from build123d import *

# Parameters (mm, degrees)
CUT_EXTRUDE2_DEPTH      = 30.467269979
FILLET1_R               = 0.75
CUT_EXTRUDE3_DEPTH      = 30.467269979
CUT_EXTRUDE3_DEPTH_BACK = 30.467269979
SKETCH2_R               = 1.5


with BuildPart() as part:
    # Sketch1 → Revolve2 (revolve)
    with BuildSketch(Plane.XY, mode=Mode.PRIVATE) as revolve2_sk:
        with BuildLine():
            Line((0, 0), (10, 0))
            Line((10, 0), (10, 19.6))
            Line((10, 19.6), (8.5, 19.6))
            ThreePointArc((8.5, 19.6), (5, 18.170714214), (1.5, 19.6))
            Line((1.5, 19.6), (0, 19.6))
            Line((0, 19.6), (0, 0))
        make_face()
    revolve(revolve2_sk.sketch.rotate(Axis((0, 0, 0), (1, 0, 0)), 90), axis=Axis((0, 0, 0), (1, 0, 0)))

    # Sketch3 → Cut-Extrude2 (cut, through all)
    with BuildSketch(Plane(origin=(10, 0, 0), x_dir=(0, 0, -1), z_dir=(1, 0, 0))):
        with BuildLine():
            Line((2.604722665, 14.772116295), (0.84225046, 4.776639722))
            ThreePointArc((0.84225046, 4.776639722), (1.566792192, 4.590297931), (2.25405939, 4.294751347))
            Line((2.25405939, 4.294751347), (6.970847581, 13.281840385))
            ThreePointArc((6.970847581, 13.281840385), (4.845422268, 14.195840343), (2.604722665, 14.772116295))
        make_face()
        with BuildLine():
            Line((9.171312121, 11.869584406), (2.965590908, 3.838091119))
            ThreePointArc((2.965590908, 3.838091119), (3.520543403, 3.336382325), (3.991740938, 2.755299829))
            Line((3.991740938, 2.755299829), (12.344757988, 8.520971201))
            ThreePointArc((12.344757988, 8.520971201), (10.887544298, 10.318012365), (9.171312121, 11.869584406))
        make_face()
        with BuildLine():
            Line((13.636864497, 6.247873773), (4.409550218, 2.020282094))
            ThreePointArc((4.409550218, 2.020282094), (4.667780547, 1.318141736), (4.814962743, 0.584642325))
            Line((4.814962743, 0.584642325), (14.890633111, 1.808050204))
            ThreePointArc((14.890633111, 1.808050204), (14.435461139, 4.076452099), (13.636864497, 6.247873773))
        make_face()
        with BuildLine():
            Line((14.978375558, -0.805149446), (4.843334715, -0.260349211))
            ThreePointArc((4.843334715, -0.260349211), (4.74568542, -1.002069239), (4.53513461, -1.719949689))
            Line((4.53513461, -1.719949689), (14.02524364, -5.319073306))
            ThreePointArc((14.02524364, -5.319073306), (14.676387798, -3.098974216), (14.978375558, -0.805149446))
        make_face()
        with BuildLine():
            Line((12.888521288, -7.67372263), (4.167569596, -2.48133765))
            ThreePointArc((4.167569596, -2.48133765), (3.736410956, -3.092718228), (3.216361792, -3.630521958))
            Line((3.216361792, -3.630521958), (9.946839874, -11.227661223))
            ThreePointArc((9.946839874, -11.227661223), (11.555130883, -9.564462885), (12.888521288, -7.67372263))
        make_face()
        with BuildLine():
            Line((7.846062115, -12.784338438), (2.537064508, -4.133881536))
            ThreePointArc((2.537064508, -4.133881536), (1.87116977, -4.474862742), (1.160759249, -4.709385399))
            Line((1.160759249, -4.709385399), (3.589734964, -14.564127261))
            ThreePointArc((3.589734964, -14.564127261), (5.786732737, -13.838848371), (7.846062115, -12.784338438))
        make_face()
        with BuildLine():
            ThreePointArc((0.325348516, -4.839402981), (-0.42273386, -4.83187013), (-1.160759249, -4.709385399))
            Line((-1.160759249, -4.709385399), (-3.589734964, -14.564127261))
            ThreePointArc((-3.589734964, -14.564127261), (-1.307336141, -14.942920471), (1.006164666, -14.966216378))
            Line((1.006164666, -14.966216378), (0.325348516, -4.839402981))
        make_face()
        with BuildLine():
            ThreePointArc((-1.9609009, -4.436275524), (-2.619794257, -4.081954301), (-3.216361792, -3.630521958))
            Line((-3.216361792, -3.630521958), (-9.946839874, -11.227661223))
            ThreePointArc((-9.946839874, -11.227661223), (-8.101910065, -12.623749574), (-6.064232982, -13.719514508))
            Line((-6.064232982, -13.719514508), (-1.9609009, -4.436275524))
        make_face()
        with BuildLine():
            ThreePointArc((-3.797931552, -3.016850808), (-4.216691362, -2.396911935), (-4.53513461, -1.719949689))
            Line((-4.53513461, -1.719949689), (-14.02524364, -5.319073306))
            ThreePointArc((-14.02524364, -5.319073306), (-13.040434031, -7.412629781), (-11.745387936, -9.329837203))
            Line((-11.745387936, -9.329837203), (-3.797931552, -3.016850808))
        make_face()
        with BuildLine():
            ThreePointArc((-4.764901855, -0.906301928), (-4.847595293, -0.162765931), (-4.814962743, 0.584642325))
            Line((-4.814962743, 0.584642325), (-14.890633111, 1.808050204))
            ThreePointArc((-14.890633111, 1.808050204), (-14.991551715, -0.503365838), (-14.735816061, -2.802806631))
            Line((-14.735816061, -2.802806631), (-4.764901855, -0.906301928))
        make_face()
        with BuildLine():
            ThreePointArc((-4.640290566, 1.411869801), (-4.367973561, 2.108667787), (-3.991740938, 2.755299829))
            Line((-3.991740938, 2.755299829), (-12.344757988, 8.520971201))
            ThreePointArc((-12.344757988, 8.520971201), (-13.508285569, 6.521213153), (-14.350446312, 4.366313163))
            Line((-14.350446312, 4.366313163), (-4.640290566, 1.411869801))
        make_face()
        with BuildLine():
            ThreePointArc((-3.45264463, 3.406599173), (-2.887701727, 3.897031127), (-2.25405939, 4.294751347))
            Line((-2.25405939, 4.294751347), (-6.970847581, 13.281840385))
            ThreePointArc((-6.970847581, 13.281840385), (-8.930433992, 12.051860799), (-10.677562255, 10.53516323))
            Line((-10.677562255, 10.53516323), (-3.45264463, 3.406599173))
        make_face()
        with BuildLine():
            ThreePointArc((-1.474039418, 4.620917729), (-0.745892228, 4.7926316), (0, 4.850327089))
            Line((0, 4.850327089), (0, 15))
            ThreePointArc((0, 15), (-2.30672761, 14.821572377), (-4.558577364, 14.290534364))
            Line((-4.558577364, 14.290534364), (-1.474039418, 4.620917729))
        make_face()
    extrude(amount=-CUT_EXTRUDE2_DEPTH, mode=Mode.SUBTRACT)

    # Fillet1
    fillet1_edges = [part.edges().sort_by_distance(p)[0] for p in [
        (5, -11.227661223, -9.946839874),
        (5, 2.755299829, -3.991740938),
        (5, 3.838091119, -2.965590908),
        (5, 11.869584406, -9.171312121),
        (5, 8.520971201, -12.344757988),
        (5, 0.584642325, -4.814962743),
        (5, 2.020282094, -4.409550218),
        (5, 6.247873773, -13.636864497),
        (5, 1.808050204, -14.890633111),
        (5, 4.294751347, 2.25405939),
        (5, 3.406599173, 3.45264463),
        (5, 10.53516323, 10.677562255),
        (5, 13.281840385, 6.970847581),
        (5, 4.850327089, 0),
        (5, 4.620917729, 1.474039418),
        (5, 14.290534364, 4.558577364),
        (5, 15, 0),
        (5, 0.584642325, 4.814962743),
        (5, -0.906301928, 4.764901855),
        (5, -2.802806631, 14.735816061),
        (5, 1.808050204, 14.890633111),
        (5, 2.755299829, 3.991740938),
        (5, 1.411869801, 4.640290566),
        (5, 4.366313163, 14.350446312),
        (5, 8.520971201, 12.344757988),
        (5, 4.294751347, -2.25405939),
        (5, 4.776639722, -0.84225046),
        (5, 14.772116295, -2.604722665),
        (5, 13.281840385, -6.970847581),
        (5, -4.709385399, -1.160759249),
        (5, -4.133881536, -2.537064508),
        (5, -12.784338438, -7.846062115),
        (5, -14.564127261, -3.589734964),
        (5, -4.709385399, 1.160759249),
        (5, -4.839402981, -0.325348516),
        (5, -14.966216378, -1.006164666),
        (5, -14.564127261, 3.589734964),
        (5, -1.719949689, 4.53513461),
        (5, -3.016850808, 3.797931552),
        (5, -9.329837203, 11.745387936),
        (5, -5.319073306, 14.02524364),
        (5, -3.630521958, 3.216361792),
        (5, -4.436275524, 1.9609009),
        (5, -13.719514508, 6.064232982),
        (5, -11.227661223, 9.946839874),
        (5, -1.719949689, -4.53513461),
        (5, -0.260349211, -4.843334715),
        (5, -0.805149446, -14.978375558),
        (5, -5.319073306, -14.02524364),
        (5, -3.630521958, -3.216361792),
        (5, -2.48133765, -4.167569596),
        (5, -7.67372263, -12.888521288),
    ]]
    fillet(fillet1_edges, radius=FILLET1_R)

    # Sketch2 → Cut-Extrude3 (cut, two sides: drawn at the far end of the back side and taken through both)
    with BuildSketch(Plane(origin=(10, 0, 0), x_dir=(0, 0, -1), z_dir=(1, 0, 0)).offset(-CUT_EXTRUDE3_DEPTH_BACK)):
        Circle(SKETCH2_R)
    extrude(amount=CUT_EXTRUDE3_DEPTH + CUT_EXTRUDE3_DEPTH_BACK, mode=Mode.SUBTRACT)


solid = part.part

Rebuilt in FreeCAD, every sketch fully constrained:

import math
import FreeCAD as App
import Part
import Sketcher

V = App.Vector
Q = App.Units.Quantity


def edges_at(feature, points):
    """Names of the edges that pass closest to the given points."""
    edges = feature.Shape.Edges
    near = lambda p: min(range(len(edges)), key=lambda i: edges[i].distToShape(Part.Vertex(*p))[0])
    return sorted({f"Edge{near(p) + 1}" for p in points})

doc = App.newDocument("Part")
body = doc.addObject("PartDesign::Body", "Body")

sketch1 = body.newObject("Sketcher::SketchObject", "Sketch")
sketch1.AttachmentSupport = (doc.getObject("XY_Plane"), [""])
sketch1.MapMode = "FlatFace"
sketch1.addGeometry([
    Part.LineSegment(V(0, 0, 0), V(10, 0, 0)),
    Part.LineSegment(V(10, 0, 0), V(10, 19.6, 0)),
    Part.LineSegment(V(10, 19.6, 0), V(8.5, 19.6, 0)),
    Part.ArcOfCircle(Part.Circle(V(5, 23.2, 0), V(0, 0, 1), 5), math.radians(-134), math.radians(-46)),
    Part.LineSegment(V(1.5, 19.6, 0), V(0, 19.6, 0)),
    Part.LineSegment(V(0, 19.6, 0), V(0, 0, 0)),
], False)
sketch1.addConstraint([
    Sketcher.Constraint("Coincident", 0, 2, 1, 1),
    Sketcher.Constraint("Coincident", 1, 2, 2, 1),
    Sketcher.Constraint("Coincident", 2, 2, 3, 2),
    Sketcher.Constraint("Coincident", 3, 1, 4, 1),
    Sketcher.Constraint("Coincident", 4, 2, 5, 1),
    Sketcher.Constraint("Coincident", 5, 2, 0, 1),
    Sketcher.Constraint("Horizontal", 0),
    Sketcher.Constraint("Vertical", 1),
    Sketcher.Constraint("Horizontal", 2),
    Sketcher.Constraint("Horizontal", 4),
    Sketcher.Constraint("Vertical", 5),
    Sketcher.Constraint("Coincident", 5, 2, -1, 1),
    Sketcher.Constraint("Horizontal", 2, 2, 3, 1),
    Sketcher.Constraint("Equal", 2, 4),
    Sketcher.Constraint("Radius", 3, Q("5 mm")),
    Sketcher.Constraint("DistanceX", 0, 1, 0, 2, Q("10 mm")),
    Sketcher.Constraint("DistanceX", 2, 2, 2, 1, Q("1.5 mm")),
    Sketcher.Constraint("DistanceY", 1, 1, 1, 2, Q("19.6 mm")),
])
revolution = body.newObject("PartDesign::Revolution", "Revolution")
revolution.Profile = sketch1
revolution.ReferenceAxis = (sketch1, ["H_Axis"])
revolution.Angle = 360

sketch2 = body.newObject("Sketcher::SketchObject", "Sketch001")
sketch2.AttachmentSupport = (doc.getObject("YZ_Plane"), [""])
sketch2.MapMode = "FlatFace"
sketch2.AttachmentOffset = App.Placement(V(0, 0, 10), App.Rotation())
sketch2.addGeometry([
    Part.LineSegment(V(14.8, -2.6, 0), V(4.8, -0.8, 0)),
    Part.ArcOfCircle(Part.Circle(V(0, 0, 0), V(0, 0, 1), 4.9), math.radians(-27.69), math.radians(-10)),
    Part.LineSegment(V(4.3, -2.3, 0), V(13.3, -7, 0)),
    Part.ArcOfCircle(Part.Circle(V(0, 0, 0), V(0, 0, 1), 15), math.radians(-27.69), math.radians(-10)),
    Part.LineSegment(V(11.9, -9.2, 0), V(3.8, -3, 0)),
    Part.ArcOfCircle(Part.Circle(V(0, 0, 0), V(0, 0, 1), 4.9), math.radians(-55.38), math.radians(-37.69)),
    Part.LineSegment(V(2.8, -4, 0), V(8.5, -12.3, 0)),
    Part.ArcOfCircle(Part.Circle(V(0, 0, 0), V(0, 0, 1), 15), math.radians(-55.38), math.radians(-37.69)),
    Part.LineSegment(V(6.2, -13.6, 0), V(2, -4.4, 0)),
    Part.ArcOfCircle(Part.Circle(V(0, 0, 0), V(0, 0, 1), 4.9), math.radians(-83.08), math.radians(-65.38)),
    Part.LineSegment(V(0.6, -4.8, 0), V(1.8, -14.9, 0)),
    Part.ArcOfCircle(Part.Circle(V(0, 0, 0), V(0, 0, 1), 15), math.radians(-83.08), math.radians(-65.38)),
    Part.LineSegment(V(-0.8, -15, 0), V(-0.3, -4.8, 0)),
    Part.ArcOfCircle(Part.Circle(V(0, 0, 0), V(0, 0, 1), 4.9), math.radians(-110.77), math.radians(-93.08)),
    Part.LineSegment(V(-1.7, -4.5, 0), V(-5.3, -14, 0)),
    Part.ArcOfCircle(Part.Circle(V(0, 0, 0), V(0, 0, 1), 15), math.radians(-110.77), math.radians(-93.08)),
    Part.LineSegment(V(-7.7, -12.9, 0), V(-2.5, -4.2, 0)),
    Part.ArcOfCircle(Part.Circle(V(0, 0, 0), V(0, 0, 1), 4.9), math.radians(-138.46), math.radians(-120.77)),
    Part.LineSegment(V(-3.6, -3.2, 0), V(-11.2, -9.9, 0)),
    Part.ArcOfCircle(Part.Circle(V(0, 0, 0), V(0, 0, 1), 15), math.radians(-138.46), math.radians(-120.77)),
    Part.LineSegment(V(-12.8, -7.8, 0), V(-4.1, -2.5, 0)),
    Part.ArcOfCircle(Part.Circle(V(0, 0, 0), V(0, 0, 1), 4.9), math.radians(-166.15), math.radians(-148.46)),
    Part.LineSegment(V(-4.7, -1.2, 0), V(-14.6, -3.6, 0)),
    Part.ArcOfCircle(Part.Circle(V(0, 0, 0), V(0, 0, 1), 15), math.radians(-166.15), math.radians(-148.46)),
    Part.ArcOfCircle(Part.Circle(V(0, 0, 0), V(0, 0, 1), 4.9), math.radians(166.15), math.radians(183.85)),
    Part.LineSegment(V(-4.7, 1.2, 0), V(-14.6, 3.6, 0)),
    Part.ArcOfCircle(Part.Circle(V(0, 0, 0), V(0, 0, 1), 15), math.radians(166.15), math.radians(183.85)),
    Part.LineSegment(V(-15, -1, 0), V(-4.8, -0.3, 0)),
    Part.ArcOfCircle(Part.Circle(V(0, 0, 0), V(0, 0, 1), 4.9), math.radians(138.46), math.radians(156.15)),
    Part.LineSegment(V(-3.6, 3.2, 0), V(-11.2, 9.9, 0)),
    Part.ArcOfCircle(Part.Circle(V(0, 0, 0), V(0, 0, 1), 15), math.radians(138.46), math.radians(156.15)),
    Part.LineSegment(V(-13.7, 6.1, 0), V(-4.4, 2, 0)),
    Part.ArcOfCircle(Part.Circle(V(0, 0, 0), V(0, 0, 1), 4.9), math.radians(110.77), math.radians(128.46)),
    Part.LineSegment(V(-1.7, 4.5, 0), V(-5.3, 14, 0)),
    Part.ArcOfCircle(Part.Circle(V(0, 0, 0), V(0, 0, 1), 15), math.radians(110.77), math.radians(128.46)),
    Part.LineSegment(V(-9.3, 11.7, 0), V(-3, 3.8, 0)),
    Part.ArcOfCircle(Part.Circle(V(0, 0, 0), V(0, 0, 1), 4.9), math.radians(83.08), math.radians(100.77)),
    Part.LineSegment(V(0.6, 4.8, 0), V(1.8, 14.9, 0)),
    Part.ArcOfCircle(Part.Circle(V(0, 0, 0), V(0, 0, 1), 15), math.radians(83.08), math.radians(100.77)),
    Part.LineSegment(V(-2.8, 14.7, 0), V(-0.9, 4.8, 0)),
    Part.ArcOfCircle(Part.Circle(V(0, 0, 0), V(0, 0, 1), 4.9), math.radians(55.38), math.radians(73.08)),
    Part.LineSegment(V(2.8, 4, 0), V(8.5, 12.3, 0)),
    Part.ArcOfCircle(Part.Circle(V(0, 0, 0), V(0, 0, 1), 15), math.radians(55.38), math.radians(73.08)),
    Part.LineSegment(V(4.4, 14.4, 0), V(1.4, 4.6, 0)),
    Part.ArcOfCircle(Part.Circle(V(0, 0, 0), V(0, 0, 1), 4.9), math.radians(27.69), math.radians(45.38)),
    Part.LineSegment(V(4.3, 2.3, 0), V(13.3, 7, 0)),
    Part.ArcOfCircle(Part.Circle(V(0, 0, 0), V(0, 0, 1), 15), math.radians(27.69), math.radians(45.38)),
    Part.LineSegment(V(10.5, 10.7, 0), V(3.4, 3.5, 0)),
    Part.ArcOfCircle(Part.Circle(V(0, 0, 0), V(0, 0, 1), 4.9), math.radians(0), math.radians(17.69)),
    Part.LineSegment(V(4.9, 0, 0), V(15, 0, 0)),
    Part.ArcOfCircle(Part.Circle(V(0, 0, 0), V(0, 0, 1), 15), math.radians(0), math.radians(17.69)),
    Part.LineSegment(V(14.3, 4.6, 0), V(4.6, 1.5, 0)),
], False)
sketch2.addConstraint([
    Sketcher.Constraint("Coincident", 0, 2, 1, 2),
    Sketcher.Constraint("Coincident", 1, 1, 2, 1),
    Sketcher.Constraint("Coincident", 2, 2, 3, 1),
    Sketcher.Constraint("Coincident", 3, 2, 0, 1),
    Sketcher.Constraint("Coincident", 4, 2, 5, 2),
    Sketcher.Constraint("Coincident", 5, 1, 6, 1),
    Sketcher.Constraint("Coincident", 6, 2, 7, 1),
    Sketcher.Constraint("Coincident", 7, 2, 4, 1),
    Sketcher.Constraint("Coincident", 8, 2, 9, 2),
    Sketcher.Constraint("Coincident", 9, 1, 10, 1),
    Sketcher.Constraint("Coincident", 10, 2, 11, 1),
    Sketcher.Constraint("Coincident", 11, 2, 8, 1),
    Sketcher.Constraint("Coincident", 12, 2, 13, 2),
    Sketcher.Constraint("Coincident", 13, 1, 14, 1),
    Sketcher.Constraint("Coincident", 14, 2, 15, 1),
    Sketcher.Constraint("Coincident", 15, 2, 12, 1),
    Sketcher.Constraint("Coincident", 16, 2, 17, 2),
    Sketcher.Constraint("Coincident", 17, 1, 18, 1),
    Sketcher.Constraint("Coincident", 18, 2, 19, 1),
    Sketcher.Constraint("Coincident", 19, 2, 16, 1),
    Sketcher.Constraint("Coincident", 20, 2, 21, 2),
    Sketcher.Constraint("Coincident", 21, 1, 22, 1),
    Sketcher.Constraint("Coincident", 22, 2, 23, 1),
    Sketcher.Constraint("Coincident", 23, 2, 20, 1),
    Sketcher.Constraint("Coincident", 24, 1, 25, 1),
    Sketcher.Constraint("Coincident", 25, 2, 26, 1),
    Sketcher.Constraint("Coincident", 26, 2, 27, 1),
    Sketcher.Constraint("Coincident", 27, 2, 24, 2),
    Sketcher.Constraint("Coincident", 28, 1, 29, 1),
    Sketcher.Constraint("Coincident", 29, 2, 30, 1),
    Sketcher.Constraint("Coincident", 30, 2, 31, 1),
    Sketcher.Constraint("Coincident", 31, 2, 28, 2),
    Sketcher.Constraint("Coincident", 32, 1, 33, 1),
    Sketcher.Constraint("Coincident", 33, 2, 34, 1),
    Sketcher.Constraint("Coincident", 34, 2, 35, 1),
    Sketcher.Constraint("Coincident", 35, 2, 32, 2),
    Sketcher.Constraint("Coincident", 36, 1, 37, 1),
    Sketcher.Constraint("Coincident", 37, 2, 38, 1),
    Sketcher.Constraint("Coincident", 38, 2, 39, 1),
    Sketcher.Constraint("Coincident", 39, 2, 36, 2),
    Sketcher.Constraint("Coincident", 40, 1, 41, 1),
    Sketcher.Constraint("Coincident", 41, 2, 42, 1),
    Sketcher.Constraint("Coincident", 42, 2, 43, 1),
    Sketcher.Constraint("Coincident", 43, 2, 40, 2),
    Sketcher.Constraint("Coincident", 44, 1, 45, 1),
    Sketcher.Constraint("Coincident", 45, 2, 46, 1),
    Sketcher.Constraint("Coincident", 46, 2, 47, 1),
    Sketcher.Constraint("Coincident", 47, 2, 44, 2),
    Sketcher.Constraint("Coincident", 48, 1, 49, 1),
    Sketcher.Constraint("Coincident", 49, 2, 50, 1),
    Sketcher.Constraint("Coincident", 50, 2, 51, 1),
    Sketcher.Constraint("Coincident", 51, 2, 48, 2),
    Sketcher.Constraint("Horizontal", 49),
    Sketcher.Constraint("Coincident", 1, 3, -1, 1),
    Sketcher.Constraint("Coincident", 3, 3, -1, 1),
    Sketcher.Constraint("Coincident", 5, 3, -1, 1),
    Sketcher.Constraint("Coincident", 7, 3, -1, 1),
    Sketcher.Constraint("Coincident", 9, 3, -1, 1),
    Sketcher.Constraint("Coincident", 11, 3, -1, 1),
    Sketcher.Constraint("Coincident", 13, 3, -1, 1),
    Sketcher.Constraint("Coincident", 15, 3, -1, 1),
    Sketcher.Constraint("Coincident", 17, 3, -1, 1),
    Sketcher.Constraint("Coincident", 19, 3, -1, 1),
    Sketcher.Constraint("Coincident", 21, 3, -1, 1),
    Sketcher.Constraint("Coincident", 23, 3, -1, 1),
    Sketcher.Constraint("Coincident", 24, 3, -1, 1),
    Sketcher.Constraint("Coincident", 26, 3, -1, 1),
    Sketcher.Constraint("Coincident", 28, 3, -1, 1),
    Sketcher.Constraint("Coincident", 30, 3, -1, 1),
    Sketcher.Constraint("Coincident", 32, 3, -1, 1),
    Sketcher.Constraint("Coincident", 34, 3, -1, 1),
    Sketcher.Constraint("Coincident", 36, 3, -1, 1),
    Sketcher.Constraint("Coincident", 38, 3, -1, 1),
    Sketcher.Constraint("Coincident", 40, 3, -1, 1),
    Sketcher.Constraint("Coincident", 42, 3, -1, 1),
    Sketcher.Constraint("Coincident", 44, 3, -1, 1),
    Sketcher.Constraint("Coincident", 46, 3, -1, 1),
    Sketcher.Constraint("Coincident", 48, 3, -1, 1),
    Sketcher.Constraint("Coincident", 50, 3, -1, 1),
    Sketcher.Constraint("Equal", 1, 5),
    Sketcher.Constraint("Equal", 3, 7),
    Sketcher.Constraint("Equal", 5, 9),
    Sketcher.Constraint("Equal", 7, 11),
    Sketcher.Constraint("Equal", 9, 13),
    Sketcher.Constraint("Equal", 11, 15),
    Sketcher.Constraint("Equal", 13, 17),
    Sketcher.Constraint("Equal", 15, 19),
    Sketcher.Constraint("Equal", 17, 21),
    Sketcher.Constraint("Equal", 19, 23),
    Sketcher.Constraint("Equal", 21, 24),
    Sketcher.Constraint("Equal", 23, 26),
    Sketcher.Constraint("Equal", 24, 28),
    Sketcher.Constraint("Equal", 26, 30),
    Sketcher.Constraint("Equal", 28, 32),
    Sketcher.Constraint("Equal", 30, 34),
    Sketcher.Constraint("Equal", 32, 36),
    Sketcher.Constraint("Equal", 34, 38),
    Sketcher.Constraint("Equal", 36, 40),
    Sketcher.Constraint("Equal", 38, 42),
    Sketcher.Constraint("Equal", 40, 44),
    Sketcher.Constraint("Equal", 42, 46),
    Sketcher.Constraint("Equal", 44, 48),
    Sketcher.Constraint("Equal", 46, 50),
    Sketcher.Constraint("PointOnObject", 48, 1, -1),
    Sketcher.Constraint("Vertical", 21, 1, 24, 1),
    Sketcher.Constraint("Vertical", 22, 2, 25, 2),
    Sketcher.Constraint("Vertical", 17, 1, 28, 1),
    Sketcher.Constraint("Vertical", 18, 2, 29, 2),
    Sketcher.Constraint("Vertical", 13, 1, 32, 1),
    Sketcher.Constraint("Vertical", 14, 2, 33, 2),
    Sketcher.Constraint("Vertical", 9, 1, 36, 1),
    Sketcher.Constraint("Vertical", 10, 2, 37, 2),
    Sketcher.Constraint("Vertical", 5, 1, 40, 1),
    Sketcher.Constraint("Vertical", 6, 2, 41, 2),
    Sketcher.Constraint("Vertical", 1, 1, 44, 1),
    Sketcher.Constraint("Vertical", 2, 2, 45, 2),
    Sketcher.Constraint("Radius", 3, Q("15 mm")),
    Sketcher.Constraint("Angle", 0, Q("170 deg")),
    Sketcher.Constraint("Radius", 1, Q("4.850327 mm")),
    Sketcher.Constraint("DistanceX", -1, 1, 5, 1, Q("2.7553 mm")),
    Sketcher.Constraint("DistanceY", -1, 1, 31, 2, Q("1.960901 mm")),
    Sketcher.Constraint("DistanceX", 39, 2, -1, 1, Q("0.906302 mm")),
    Sketcher.Constraint("DistanceX", -1, 1, 47, 2, Q("3.406599 mm")),
    Sketcher.Constraint("DistanceX", -1, 1, 0, 2, Q("4.77664 mm")),
    Sketcher.Constraint("DistanceX", -1, 1, 1, 1, Q("4.294751 mm")),
    Sketcher.Constraint("DistanceX", -1, 1, 2, 2, Q("13.28184 mm")),
    Sketcher.Constraint("DistanceX", -1, 1, 4, 2, Q("3.838091 mm")),
    Sketcher.Constraint("DistanceX", -1, 1, 6, 2, Q("8.520971 mm")),
    Sketcher.Constraint("DistanceY", 8, 2, -1, 1, Q("4.40955 mm")),
    Sketcher.Constraint("DistanceX", -1, 1, 10, 2, Q("1.80805 mm")),
    Sketcher.Constraint("DistanceX", 12, 2, -1, 1, Q("0.260349 mm")),
    Sketcher.Constraint("DistanceX", 13, 1, -1, 1, Q("1.71995 mm")),
    Sketcher.Constraint("DistanceX", 15, 2, -1, 1, Q("0.805149 mm")),
    Sketcher.Constraint("DistanceY", 16, 2, -1, 1, Q("4.16757 mm")),
    Sketcher.Constraint("DistanceX", 17, 1, -1, 1, Q("3.630522 mm")),
    Sketcher.Constraint("DistanceX", 18, 2, -1, 1, Q("11.227661 mm")),
    Sketcher.Constraint("DistanceY", 19, 2, -1, 1, Q("12.888521 mm")),
    Sketcher.Constraint("DistanceX", 20, 2, -1, 1, Q("4.133882 mm")),
    Sketcher.Constraint("DistanceY", 21, 1, -1, 1, Q("1.160759 mm")),
    Sketcher.Constraint("DistanceX", 23, 2, -1, 1, Q("12.784338 mm")),
    Sketcher.Constraint("DistanceY", 27, 2, -1, 1, Q("0.325349 mm")),
    Sketcher.Constraint("DistanceX", 35, 2, -1, 1, Q("3.016851 mm")),
    Sketcher.Constraint("DistanceX", -1, 1, 43, 2, Q("1.41187 mm")),
    Sketcher.Constraint("DistanceY", -1, 1, 51, 2, Q("1.474039 mm")),
    Sketcher.Constraint("DistanceX", -1, 1, 7, 2, Q("11.869584 mm")),
    Sketcher.Constraint("DistanceX", -1, 1, 9, 1, Q("0.584642 mm")),
    Sketcher.Constraint("DistanceX", -1, 1, 11, 2, Q("6.247874 mm")),
    Sketcher.Constraint("DistanceX", 14, 2, -1, 1, Q("5.319073 mm")),
    Sketcher.Constraint("DistanceX", 22, 2, -1, 1, Q("14.564127 mm")),
    Sketcher.Constraint("DistanceX", 26, 2, -1, 1, Q("14.966216 mm")),
    Sketcher.Constraint("DistanceX", 30, 2, -1, 1, Q("13.719515 mm")),
    Sketcher.Constraint("DistanceX", 34, 2, -1, 1, Q("9.329837 mm")),
    Sketcher.Constraint("DistanceX", 38, 2, -1, 1, Q("2.802807 mm")),
    Sketcher.Constraint("DistanceX", -1, 1, 42, 2, Q("4.366313 mm")),
    Sketcher.Constraint("DistanceX", -1, 1, 46, 2, Q("10.535163 mm")),
    Sketcher.Constraint("DistanceX", -1, 1, 50, 2, Q("14.290534 mm")),
])
pocket1 = body.newObject("PartDesign::Pocket", "Pocket")
pocket1.Profile = sketch2
pocket1.Type = "ThroughAll"
doc.recompute()

fillet = body.newObject("PartDesign::Fillet", "Fillet")
fillet.Base = (pocket1, edges_at(pocket1, [
    (5, -11.228, -9.947),
    (5, 2.755, -3.992),
    (5, 3.838, -2.966),
    (5, 11.87, -9.171),
    (5, 8.521, -12.345),
    (5, 0.585, -4.815),
    (5, 2.02, -4.41),
    (5, 6.248, -13.637),
    (5, 1.808, -14.891),
    (5, 4.295, 2.254),
    (5, 3.407, 3.453),
    (5, 10.535, 10.678),
    (5, 13.282, 6.971),
    (5, 4.85, 0),
    (5, 4.621, 1.474),
    (5, 14.291, 4.559),
    (5, 15, 0),
    (5, 0.585, 4.815),
    (5, -0.906, 4.765),
    (5, -2.803, 14.736),
    (5, 1.808, 14.891),
    (5, 2.755, 3.992),
    (5, 1.412, 4.64),
    (5, 4.366, 14.35),
    (5, 8.521, 12.345),
    (5, 4.295, -2.254),
    (5, 4.777, -0.842),
    (5, 14.772, -2.605),
    (5, 13.282, -6.971),
    (5, -4.709, -1.161),
    (5, -4.134, -2.537),
    (5, -12.784, -7.846),
    (5, -14.564, -3.59),
    (5, -4.709, 1.161),
    (5, -4.839, -0.325),
    (5, -14.966, -1.006),
    (5, -14.564, 3.59),
    (5, -1.72, 4.535),
    (5, -3.017, 3.798),
    (5, -9.33, 11.745),
    (5, -5.319, 14.025),
    (5, -3.631, 3.216),
    (5, -4.436, 1.961),
    (5, -13.72, 6.064),
    (5, -11.228, 9.947),
    (5, -1.72, -4.535),
    (5, -0.26, -4.843),
    (5, -0.805, -14.978),
    (5, -5.319, -14.025),
    (5, -3.631, -3.216),
    (5, -2.481, -4.168),
    (5, -7.674, -12.889),
]))
fillet.Radius = 0.75

sketch3 = body.newObject("Sketcher::SketchObject", "Sketch002")
sketch3.AttachmentSupport = (doc.getObject("YZ_Plane"), [""])
sketch3.MapMode = "FlatFace"
sketch3.AttachmentOffset = App.Placement(V(0, 0, 10), App.Rotation())
sketch3.addGeometry(Part.Circle(V(0, 0, 0), V(0, 0, 1), 1.5), False)
sketch3.addConstraint([
    Sketcher.Constraint("Coincident", 0, 3, -1, 1),
    Sketcher.Constraint("Diameter", 0, Q("3 mm")),
])
pocket2 = body.newObject("PartDesign::Pocket", "Pocket001")
pocket2.Profile = sketch3
pocket2.Type = "ThroughAll"
pocket2.Midplane = True

doc.recompute()
